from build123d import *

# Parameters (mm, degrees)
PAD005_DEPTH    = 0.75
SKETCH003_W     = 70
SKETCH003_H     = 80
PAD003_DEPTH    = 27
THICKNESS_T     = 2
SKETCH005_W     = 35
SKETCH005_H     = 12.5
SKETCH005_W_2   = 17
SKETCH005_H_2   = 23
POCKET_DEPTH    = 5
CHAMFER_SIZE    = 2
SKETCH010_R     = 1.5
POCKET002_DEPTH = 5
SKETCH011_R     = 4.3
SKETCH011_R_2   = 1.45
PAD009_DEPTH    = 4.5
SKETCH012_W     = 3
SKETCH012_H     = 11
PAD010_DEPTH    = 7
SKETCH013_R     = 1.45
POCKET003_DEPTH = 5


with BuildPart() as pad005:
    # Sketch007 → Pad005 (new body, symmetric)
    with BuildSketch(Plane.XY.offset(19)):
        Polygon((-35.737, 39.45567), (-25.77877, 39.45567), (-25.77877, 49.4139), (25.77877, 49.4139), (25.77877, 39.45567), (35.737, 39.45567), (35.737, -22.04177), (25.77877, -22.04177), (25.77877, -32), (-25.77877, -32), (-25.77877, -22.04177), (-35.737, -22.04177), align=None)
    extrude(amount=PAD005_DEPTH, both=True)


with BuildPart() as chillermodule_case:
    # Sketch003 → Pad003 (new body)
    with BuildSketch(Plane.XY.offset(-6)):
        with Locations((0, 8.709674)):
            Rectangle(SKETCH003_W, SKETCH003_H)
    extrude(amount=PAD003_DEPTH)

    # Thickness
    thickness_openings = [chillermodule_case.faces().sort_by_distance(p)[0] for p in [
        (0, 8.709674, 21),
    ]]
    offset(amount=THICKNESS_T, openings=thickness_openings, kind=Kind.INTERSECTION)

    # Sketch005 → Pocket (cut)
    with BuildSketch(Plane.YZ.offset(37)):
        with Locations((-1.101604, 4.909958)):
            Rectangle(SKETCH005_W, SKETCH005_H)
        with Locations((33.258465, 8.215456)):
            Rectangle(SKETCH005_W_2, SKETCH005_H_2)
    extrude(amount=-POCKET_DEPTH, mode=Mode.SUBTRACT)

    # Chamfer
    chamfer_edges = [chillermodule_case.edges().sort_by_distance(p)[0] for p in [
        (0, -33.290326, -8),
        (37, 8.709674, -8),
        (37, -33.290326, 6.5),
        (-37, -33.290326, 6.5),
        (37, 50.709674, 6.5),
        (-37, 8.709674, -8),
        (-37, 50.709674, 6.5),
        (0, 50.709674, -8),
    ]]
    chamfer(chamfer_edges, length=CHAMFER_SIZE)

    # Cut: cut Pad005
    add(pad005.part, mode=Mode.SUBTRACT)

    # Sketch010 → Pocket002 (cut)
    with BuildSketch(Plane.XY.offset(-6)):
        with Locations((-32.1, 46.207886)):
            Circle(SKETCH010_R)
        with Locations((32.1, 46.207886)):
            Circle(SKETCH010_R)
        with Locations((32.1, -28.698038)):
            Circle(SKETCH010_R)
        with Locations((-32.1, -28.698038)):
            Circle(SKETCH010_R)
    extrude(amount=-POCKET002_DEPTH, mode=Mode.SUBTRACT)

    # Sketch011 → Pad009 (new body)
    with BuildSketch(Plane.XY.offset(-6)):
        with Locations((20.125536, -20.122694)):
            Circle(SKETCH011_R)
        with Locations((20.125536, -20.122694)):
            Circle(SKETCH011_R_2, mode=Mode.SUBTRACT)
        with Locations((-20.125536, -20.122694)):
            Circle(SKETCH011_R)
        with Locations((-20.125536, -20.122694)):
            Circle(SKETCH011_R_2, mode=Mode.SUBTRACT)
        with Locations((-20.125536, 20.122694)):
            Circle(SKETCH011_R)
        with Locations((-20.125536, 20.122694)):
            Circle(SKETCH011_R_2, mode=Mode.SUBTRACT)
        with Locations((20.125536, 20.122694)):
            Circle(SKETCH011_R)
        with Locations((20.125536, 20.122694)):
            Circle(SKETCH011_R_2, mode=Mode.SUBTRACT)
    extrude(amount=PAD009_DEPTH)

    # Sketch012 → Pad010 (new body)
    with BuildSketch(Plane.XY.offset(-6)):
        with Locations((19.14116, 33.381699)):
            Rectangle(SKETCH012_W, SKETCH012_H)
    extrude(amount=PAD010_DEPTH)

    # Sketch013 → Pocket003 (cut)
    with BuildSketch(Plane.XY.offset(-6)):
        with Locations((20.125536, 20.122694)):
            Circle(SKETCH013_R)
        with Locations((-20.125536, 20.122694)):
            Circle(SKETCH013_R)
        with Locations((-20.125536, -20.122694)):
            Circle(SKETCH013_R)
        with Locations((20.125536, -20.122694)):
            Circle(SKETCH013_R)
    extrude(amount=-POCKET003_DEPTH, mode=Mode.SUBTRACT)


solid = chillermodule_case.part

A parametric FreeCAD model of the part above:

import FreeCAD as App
import Part
import Sketcher
Q = App.Units.Quantity


def edges_at(feature, points):
    """Names of the edges that pass closest to the given points."""
    edges = feature.Shape.Edges
    near = lambda p: min(range(len(edges)), key=lambda i: edges[i].distToShape(Part.Vertex(*p))[0])
    return sorted({f"Edge{near(p) + 1}" for p in points})


def faces_at(feature, points):
    """Names of the faces that lie closest to the given points."""
    faces = feature.Shape.Faces
    near = lambda p: min(range(len(faces)), key=lambda i: faces[i].distToShape(Part.Vertex(*p))[0])
    return sorted({f"Face{near(p) + 1}" for p in points})

doc = App.newDocument("Part")
params = doc.addObject("Spreadsheet::Sheet", "Params")
for row, (alias, value) in enumerate([
    ("pad1_length", "1.5 mm"),
    ("sketch2_width", "70 mm"),
    ("sketch2_height", "80 mm"),
    ("pad2_length", "27 mm"),
    ("thickness_wall", "2 mm"),
    ("sketch3_width", "35 mm"),
    ("sketch3_width2", "17 mm"),
    ("sketch3_height", "23 mm"),
    ("sketch3_height2", "12.5 mm"),
    ("pocket1_length", "5 mm"),
    ("chamfer_size", "2 mm"),
    ("sketch4_diameter", "3 mm"),
    ("pocket2_length", "5 mm"),
    ("sketch5_diameter", "8.6 mm"),
    ("sketch5_diameter2", "2.9 mm"),
    ("pad3_length", "4.5 mm"),
    ("sketch6_width", "3 mm"),
    ("sketch6_height", "11 mm"),
    ("pad4_length", "7 mm"),
    ("sketch7_diameter", "2.9 mm"),
    ("pocket3_length", "5 mm"),
], start=1):
    params.set(f"A{row}", alias)
    params.set(f"B{row}", "=" + value)
    params.setAlias(f"B{row}", alias)

body = doc.addObject("PartDesign::Body", "Body")

# Sketch on XY plane
sketch1 = body.newObject("Sketcher::SketchObject", "Sketch")
sketch1.AttachmentSupport = (doc.getObject("XY_Plane"), [""])
sketch1.MapMode = "FlatFace"
sketch1.AttachmentOffset = App.Placement(App.Vector(0, 0, 19), App.Rotation())
sketch1.addGeometry(Part.LineSegment(App.Vector(-25.77877, 39.45567, 0), App.Vector(-35.737, 39.45567, 0)), False)
sketch1.addGeometry(Part.LineSegment(App.Vector(-35.737, 39.45567, 0), App.Vector(-35.737, -22.04177, 0)), False)
sketch1.addGeometry(Part.LineSegment(App.Vector(-35.737, -22.04177, 0), App.Vector(-25.77877, -22.04177, 0)), False)
sketch1.addGeometry(Part.LineSegment(App.Vector(-25.77877, -22.04177, 0), App.Vector(-25.77877, -32, 0)), False)
sketch1.addGeometry(Part.LineSegment(App.Vector(-25.77877, -32, 0), App.Vector(25.77877, -32, 0)), False)
sketch1.addGeometry(Part.LineSegment(App.Vector(25.77877, -32, 0), App.Vector(25.77877, -22.04177, 0)), False)
sketch1.addGeometry(Part.LineSegment(App.Vector(25.77877, -22.04177, 0), App.Vector(35.737, -22.04177, 0)), False)
sketch1.addGeometry(Part.LineSegment(App.Vector(35.737, -22.04177, 0), App.Vector(35.737, 39.45567, 0)), False)
sketch1.addGeometry(Part.LineSegment(App.Vector(35.737, 39.45567, 0), App.Vector(25.77877, 39.45567, 0)), False)
sketch1.addGeometry(Part.LineSegment(App.Vector(25.77877, 39.45567, 0), App.Vector(25.77877, 49.4139, 0)), False)
sketch1.addGeometry(Part.LineSegment(App.Vector(25.77877, 49.4139, 0), App.Vector(-25.77877, 49.4139, 0)), False)
sketch1.addGeometry(Part.LineSegment(App.Vector(-25.77877, 49.4139, 0), App.Vector(-25.77877, 39.45567, 0)), False)
sketch1.addConstraint(Sketcher.Constraint("Coincident", 0, 2, 1, 1))
sketch1.addConstraint(Sketcher.Constraint("Coincident", 1, 2, 2, 1))
sketch1.addConstraint(Sketcher.Constraint("Coincident", 2, 2, 3, 1))
sketch1.addConstraint(Sketcher.Constraint("Coincident", 3, 2, 4, 1))
sketch1.addConstraint(Sketcher.Constraint("Coincident", 4, 2, 5, 1))
sketch1.addConstraint(Sketcher.Constraint("Coincident", 5, 2, 6, 1))
sketch1.addConstraint(Sketcher.Constraint("Coincident", 6, 2, 7, 1))
sketch1.addConstraint(Sketcher.Constraint("Coincident", 7, 2, 8, 1))
sketch1.addConstraint(Sketcher.Constraint("Coincident", 8, 2, 9, 1))
sketch1.addConstraint(Sketcher.Constraint("Coincident", 9, 2, 10, 1))
sketch1.addConstraint(Sketcher.Constraint("Coincident", 10, 2, 11, 1))
sketch1.addConstraint(Sketcher.Constraint("Coincident", 11, 2, 0, 1))
sketch1.addConstraint(Sketcher.Constraint("Horizontal", 0))
sketch1.addConstraint(Sketcher.Constraint("Vertical", 1))
sketch1.addConstraint(Sketcher.Constraint("Horizontal", 2))
sketch1.addConstraint(Sketcher.Constraint("Vertical", 3))
sketch1.addConstraint(Sketcher.Constraint("Horizontal", 4))
sketch1.addConstraint(Sketcher.Constraint("Vertical", 5))
sketch1.addConstraint(Sketcher.Constraint("Horizontal", 6))
sketch1.addConstraint(Sketcher.Constraint("Vertical", 7))
sketch1.addConstraint(Sketcher.Constraint("Horizontal", 8))
sketch1.addConstraint(Sketcher.Constraint("Vertical", 9))
sketch1.addConstraint(Sketcher.Constraint("Horizontal", 10))
sketch1.addConstraint(Sketcher.Constraint("Vertical", 11))
sketch1.addConstraint(Sketcher.Constraint("Symmetric", 2, 2, 5, 2, -2))
sketch1.addConstraint(Sketcher.Constraint("Symmetric", 0, 2, 7, 2, -2))
sketch1.addConstraint(Sketcher.Constraint("Vertical", 5, 2, 8, 2))
sketch1.addConstraint(Sketcher.Constraint("Vertical", 3, 2, 10, 2))
sketch1.addConstraint(Sketcher.Constraint("Equal", 8, 3))
sketch1.addConstraint(Sketcher.Constraint("Equal", 5, 9))
sketch1.addConstraint(Sketcher.Constraint("DistanceY", 3, 2, -1, 1, Q("32 mm")))
sketch1.addConstraint(Sketcher.Constraint("DistanceX", 0, 2, -1, 1, Q("35.737 mm")))
sketch1.addConstraint(Sketcher.Constraint("DistanceX", 0, 2, 0, 1, Q("9.95823 mm")))
sketch1.addConstraint(Sketcher.Constraint("DistanceY", 1, 2, 1, 1, Q("61.49744 mm")))
pad1 = body.newObject("PartDesign::Pad", "Pad")
pad1.Profile = sketch1
pad1.setExpression("Length", "Params.pad1_length")
pad1.Midplane = True
body2 = doc.addObject("PartDesign::Body", "Body001")

# Sketch on XY plane
sketch2 = body2.newObject("Sketcher::SketchObject", "Sketch001")
sketch2.AttachmentSupport = (doc.getObject("XY_Plane001"), [""])
sketch2.MapMode = "FlatFace"
sketch2.AttachmentOffset = App.Placement(App.Vector(0, 0, -6), App.Rotation())
sketch2.addGeometry(Part.LineSegment(App.Vector(-35, 48.709674, 0), App.Vector(-35, -31.290326, 0)), False)
sketch2.addGeometry(Part.LineSegment(App.Vector(-35, -31.290326, 0), App.Vector(35, -31.290326, 0)), False)
sketch2.addGeometry(Part.LineSegment(App.Vector(35, -31.290326, 0), App.Vector(35, 48.709674, 0)), False)
sketch2.addGeometry(Part.LineSegment(App.Vector(35, 48.709674, 0), App.Vector(-35, 48.709674, 0)), False)
sketch2.addConstraint(Sketcher.Constraint("Coincident", 0, 2, 1, 1))
sketch2.addConstraint(Sketcher.Constraint("Coincident", 1, 2, 2, 1))
sketch2.addConstraint(Sketcher.Constraint("Coincident", 2, 2, 3, 1))
sketch2.addConstraint(Sketcher.Constraint("Coincident", 3, 2, 0, 1))
sketch2.addConstraint(Sketcher.Constraint("Vertical", 0))
sketch2.addConstraint(Sketcher.Constraint("Horizontal", 1))
sketch2.addConstraint(Sketcher.Constraint("Vertical", 2))
sketch2.addConstraint(Sketcher.Constraint("Horizontal", 3))
sketch2.addConstraint(Sketcher.Constraint("DistanceX", 1, 1, 1, 2, Q("70 mm")))
sketch2.addConstraint(Sketcher.Constraint("DistanceY", 0, 2, 0, 1, Q("80 mm")))
sketch2.addConstraint(Sketcher.Constraint("DistanceX", 0, 2, -1, 1, Q("35 mm")))
sketch2.addConstraint(Sketcher.Constraint("DistanceY", 0, 2, -1, 1, Q("31.290326 mm")))
sketch2.setExpression("Constraints[8]", "Params.sketch2_width")
sketch2.setExpression("Constraints[9]", "Params.sketch2_height")
pad2 = body2.newObject("PartDesign::Pad", "Pad001")
pad2.Profile = sketch2
pad2.setExpression("Length", "Params.pad2_length")
doc.recompute()

thickness = body2.newObject("PartDesign::Thickness", "Thickness")
thickness.Base = (pad2, faces_at(pad2, [(0, 8.71, 21)]))
thickness.setExpression("Value", "Params.thickness_wall")
thickness.Reversed = False
thickness.Join = "Intersection"

# Sketch on YZ plane
sketch3 = body2.newObject("Sketcher::SketchObject", "Sketch002")
sketch3.AttachmentSupport = (doc.getObject("YZ_Plane001"), [""])
sketch3.MapMode = "FlatFace"
sketch3.AttachmentOffset = App.Placement(App.Vector(0, 0, 37), App.Rotation())
sketch3.addGeometry(Part.LineSegment(App.Vector(-18.601604, 11.159958, 0), App.Vector(-18.601604, -1.340042, 0)), False)
sketch3.addGeometry(Part.LineSegment(App.Vector(-18.601604, -1.340042, 0), App.Vector(16.398396, -1.340042, 0)), False)
sketch3.addGeometry(Part.LineSegment(App.Vector(16.398396, -1.340042, 0), App.Vector(16.398396, 11.159958, 0)), False)
sketch3.addGeometry(Part.LineSegment(App.Vector(16.398396, 11.159958, 0), App.Vector(-18.601604, 11.159958, 0)), False)
sketch3.addGeometry(Part.LineSegment(App.Vector(24.758465, 19.715456, 0), App.Vector(24.758465, -3.284544, 0)), False)
sketch3.addGeometry(Part.LineSegment(App.Vector(24.758465, -3.284544, 0), App.Vector(41.758465, -3.284544, 0)), False)
sketch3.addGeometry(Part.LineSegment(App.Vector(41.758465, -3.284544, 0), App.Vector(41.758465, 19.715456, 0)), False)
sketch3.addGeometry(Part.LineSegment(App.Vector(41.758465, 19.715456, 0), App.Vector(24.758465, 19.715456, 0)), False)
sketch3.addConstraint(Sketcher.Constraint("Coincident", 0, 2, 1, 1))
sketch3.addConstraint(Sketcher.Constraint("Coincident", 1, 2, 2, 1))
sketch3.addConstraint(Sketcher.Constraint("Coincident", 2, 2, 3, 1))
sketch3.addConstraint(Sketcher.Constraint("Coincident", 3, 2, 0, 1))
sketch3.addConstraint(Sketcher.Constraint("Coincident", 4, 2, 5, 1))
sketch3.addConstraint(Sketcher.Constraint("Coincident", 5, 2, 6, 1))
sketch3.addConstraint(Sketcher.Constraint("Coincident", 6, 2, 7, 1))
sketch3.addConstraint(Sketcher.Constraint("Coincident", 7, 2, 4, 1))
sketch3.addConstraint(Sketcher.Constraint("Vertical", 0))
sketch3.addConstraint(Sketcher.Constraint("Horizontal", 1))
sketch3.addConstraint(Sketcher.Constraint("Vertical", 2))
sketch3.addConstraint(Sketcher.Constraint("Horizontal", 3))
sketch3.addConstraint(Sketcher.Constraint("Vertical", 4))
sketch3.addConstraint(Sketcher.Constraint("Horizontal", 5))
sketch3.addConstraint(Sketcher.Constraint("Vertical", 6))
sketch3.addConstraint(Sketcher.Constraint("Horizontal", 7))
sketch3.addConstraint(Sketcher.Constraint("DistanceX", 1, 1, 1, 2, Q("35 mm")))
sketch3.addConstraint(Sketcher.Constraint("DistanceX", 5, 1, 5, 2, Q("17 mm")))
sketch3.addConstraint(Sketcher.Constraint("DistanceY", 4, 2, 4, 1, Q("23 mm")))
sketch3.addConstraint(Sketcher.Constraint("DistanceY", 0, 2, 0, 1, Q("12.5 mm")))
sketch3.addConstraint(Sketcher.Constraint("DistanceY", 1, 2, 6, 2, Q("21.055498 mm")))
sketch3.addConstraint(Sketcher.Constraint("DistanceX", 1, 2, 4, 2, Q("8.360069 mm")))
sketch3.addConstraint(Sketcher.Constraint("DistanceX", 0, 2, -1, 1, Q("18.601604 mm")))
sketch3.addConstraint(Sketcher.Constraint("DistanceY", 0, 2, -1, 1, Q("1.340042 mm")))
sketch3.setExpression("Constraints[16]", "Params.sketch3_width")
sketch3.setExpression("Constraints[17]", "Params.sketch3_width2")
sketch3.setExpression("Constraints[18]", "Params.sketch3_height")
sketch3.setExpression("Constraints[19]", "Params.sketch3_height2")
pocket1 = body2.newObject("PartDesign::Pocket", "Pocket")
pocket1.Profile = sketch3
pocket1.setExpression("Length", "Params.pocket1_length")
doc.recompute()

chamfer = body2.newObject("PartDesign::Chamfer", "Chamfer")
chamfer.Base = (pocket1, edges_at(pocket1, [
    (0, -33.29, -8),
    (37, 8.71, -8),
    (37, -33.29, 6.5),
    (-37, -33.29, 6.5),
    (37, 50.71, 6.5),
    (-37, 8.71, -8),
    (-37, 50.71, 6.5),
    (0, 50.71, -8),
]))
chamfer.setExpression("Size", "Params.chamfer_size")
doc.recompute()

boolean = body2.newObject("PartDesign::Boolean", "Boolean")
boolean.Type = "Cut"
boolean.addObjects([body])

# Sketch on XY plane
sketch4 = body2.newObject("Sketcher::SketchObject", "Sketch003")
sketch4.AttachmentSupport = (doc.getObject("XY_Plane001"), [""])
sketch4.MapMode = "FlatFace"
sketch4.AttachmentOffset = App.Placement(App.Vector(0, 0, -6), App.Rotation())
sketch4.addGeometry(Part.Circle(App.Vector(-32.1, 46.207886, 0), App.Vector(0, 0, 1), 1.5), False)
sketch4.addGeometry(Part.Circle(App.Vector(32.1, 46.207886, 0), App.Vector(0, 0, 1), 1.5), False)
sketch4.addGeometry(Part.Circle(App.Vector(32.1, -28.698038, 0), App.Vector(0, 0, 1), 1.5), False)
sketch4.addGeometry(Part.Circle(App.Vector(-32.1, -28.698038, 0), App.Vector(0, 0, 1), 1.5), False)
sketch4.addConstraint(Sketcher.Constraint("Equal", 0, 1))
sketch4.addConstraint(Sketcher.Constraint("Equal", 1, 2))
sketch4.addConstraint(Sketcher.Constraint("Equal", 2, 3))
sketch4.addConstraint(Sketcher.Constraint("Symmetric", 0, 3, 1, 3, -2))
sketch4.addConstraint(Sketcher.Constraint("Symmetric", 2, 3, 3, 3, -2))
sketch4.addConstraint(Sketcher.Constraint("Vertical", 1, 3, 2, 3))
sketch4.addConstraint(Sketcher.Constraint("Diameter", 0, Q("3 mm")))
sketch4.addConstraint(Sketcher.Constraint("DistanceX", 0, 3, -1, 1, Q("32.1 mm")))
sketch4.addConstraint(Sketcher.Constraint("DistanceY", 2, 3, -1, 1, Q("28.698038 mm")))
sketch4.addConstraint(Sketcher.Constraint("DistanceY", -1, 1, 0, 3, Q("46.207886 mm")))
sketch4.setExpression("Constraints[6]", "Params.sketch4_diameter")
pocket2 = body2.newObject("PartDesign::Pocket", "Pocket001")
pocket2.Profile = sketch4
pocket2.setExpression("Length", "Params.pocket2_length")

# Sketch on XY plane
sketch5 = body2.newObject("Sketcher::SketchObject", "Sketch004")
sketch5.AttachmentSupport = (doc.getObject("XY_Plane001"), [""])
sketch5.MapMode = "FlatFace"
sketch5.AttachmentOffset = App.Placement(App.Vector(0, 0, -6), App.Rotation())
sketch5.addGeometry(Part.Circle(App.Vector(20.125536, -20.122694, 0), App.Vector(0, 0, 1), 4.3), False)
sketch5.addGeometry(Part.Circle(App.Vector(20.125536, -20.122694, 0), App.Vector(0, 0, 1), 1.45), False)
sketch5.addGeometry(Part.Circle(App.Vector(-20.125536, -20.122694, 0), App.Vector(0, 0, 1), 4.3), False)
sketch5.addGeometry(Part.Circle(App.Vector(-20.125536, -20.122694, 0), App.Vector(0, 0, 1), 1.45), False)
sketch5.addGeometry(Part.Circle(App.Vector(-20.125536, 20.122694, 0), App.Vector(0, 0, 1), 4.3), False)
sketch5.addGeometry(Part.Circle(App.Vector(-20.125536, 20.122694, 0), App.Vector(0, 0, 1), 1.45), False)
sketch5.addGeometry(Part.Circle(App.Vector(20.125536, 20.122694, 0), App.Vector(0, 0, 1), 4.3), False)
sketch5.addGeometry(Part.Circle(App.Vector(20.125536, 20.122694, 0), App.Vector(0, 0, 1), 1.45), False)
sketch5.addConstraint(Sketcher.Constraint("Coincident", 1, 3, 0, 3))
sketch5.addConstraint(Sketcher.Constraint("Coincident", 3, 3, 2, 3))
sketch5.addConstraint(Sketcher.Constraint("Coincident", 5, 3, 4, 3))
sketch5.addConstraint(Sketcher.Constraint("Coincident", 7, 3, 6, 3))
sketch5.addConstraint(Sketcher.Constraint("Equal", 0, 2))
sketch5.addConstraint(Sketcher.Constraint("Equal", 1, 3))
sketch5.addConstraint(Sketcher.Constraint("Equal", 2, 4))
sketch5.addConstraint(Sketcher.Constraint("Equal", 3, 5))
sketch5.addConstraint(Sketcher.Constraint("Equal", 4, 6))
sketch5.addConstraint(Sketcher.Constraint("Equal", 5, 7))
sketch5.addConstraint(Sketcher.Constraint("Symmetric", 0, 3, 4, 3, -1, 1))
sketch5.addConstraint(Sketcher.Constraint("Symmetric", 2, 3, 6, 3, -1, 1))
sketch5.addConstraint(Sketcher.Constraint("Symmetric", 0, 3, 2, 3, -2))
sketch5.addConstraint(Sketcher.Constraint("Diameter", 0, Q("8.6 mm")))
sketch5.addConstraint(Sketcher.Constraint("Diameter", 1, Q("2.9 mm")))
sketch5.addConstraint(Sketcher.Constraint("DistanceX", -1, 1, 0, 3, Q("20.125536 mm")))
sketch5.addConstraint(Sketcher.Constraint("DistanceY", 0, 3, -1, 1, Q("20.122694 mm")))
sketch5.setExpression("Constraints[13]", "Params.sketch5_diameter")
sketch5.setExpression("Constraints[14]", "Params.sketch5_diameter2")
pad3 = body2.newObject("PartDesign::Pad", "Pad002")
pad3.Profile = sketch5
pad3.setExpression("Length", "Params.pad3_length")

# Sketch on XY plane
sketch6 = body2.newObject("Sketcher::SketchObject", "Sketch005")
sketch6.AttachmentSupport = (doc.getObject("XY_Plane001"), [""])
sketch6.MapMode = "FlatFace"
sketch6.AttachmentOffset = App.Placement(App.Vector(0, 0, -6), App.Rotation())
sketch6.addGeometry(Part.LineSegment(App.Vector(17.64116, 38.881699, 0), App.Vector(17.64116, 27.881699, 0)), False)
sketch6.addGeometry(Part.LineSegment(App.Vector(17.64116, 27.881699, 0), App.Vector(20.64116, 27.881699, 0)), False)
sketch6.addGeometry(Part.LineSegment(App.Vector(20.64116, 27.881699, 0), App.Vector(20.64116, 38.881699, 0)), False)
sketch6.addGeometry(Part.LineSegment(App.Vector(20.64116, 38.881699, 0), App.Vector(17.64116, 38.881699, 0)), False)
sketch6.addConstraint(Sketcher.Constraint("Coincident", 0, 2, 1, 1))
sketch6.addConstraint(Sketcher.Constraint("Coincident", 1, 2, 2, 1))
sketch6.addConstraint(Sketcher.Constraint("Coincident", 2, 2, 3, 1))
sketch6.addConstraint(Sketcher.Constraint("Coincident", 3, 2, 0, 1))
sketch6.addConstraint(Sketcher.Constraint("Vertical", 0))
sketch6.addConstraint(Sketcher.Constraint("Horizontal", 1))
sketch6.addConstraint(Sketcher.Constraint("Vertical", 2))
sketch6.addConstraint(Sketcher.Constraint("Horizontal", 3))
sketch6.addConstraint(Sketcher.Constraint("DistanceX", 1, 1, 1, 2, Q("3 mm")))
sketch6.addConstraint(Sketcher.Constraint("DistanceY", 0, 2, 0, 1, Q("11 mm")))
sketch6.addConstraint(Sketcher.Constraint("DistanceY", -1, 1, 0, 2, Q("27.881699 mm")))
sketch6.addConstraint(Sketcher.Constraint("DistanceX", -1, 1, 0, 2, Q("17.64116 mm")))
sketch6.setExpression("Constraints[8]", "Params.sketch6_width")
sketch6.setExpression("Constraints[9]", "Params.sketch6_height")
pad4 = body2.newObject("PartDesign::Pad", "Pad003")
pad4.Profile = sketch6
pad4.setExpression("Length", "Params.pad4_length")

# Sketch on XY plane
sketch7 = body2.newObject("Sketcher::SketchObject", "Sketch006")
sketch7.AttachmentSupport = (doc.getObject("XY_Plane001"), [""])
sketch7.MapMode = "FlatFace"
sketch7.AttachmentOffset = App.Placement(App.Vector(0, 0, -6), App.Rotation())
sketch7.addGeometry(Part.Circle(App.Vector(20.125536, 20.122694, 0), App.Vector(0, 0, 1), 1.45), False)
sketch7.addGeometry(Part.Circle(App.Vector(-20.125536, 20.122694, 0), App.Vector(0, 0, 1), 1.45), False)
sketch7.addGeometry(Part.Circle(App.Vector(-20.125536, -20.122694, 0), App.Vector(0, 0, 1), 1.45), False)
sketch7.addGeometry(Part.Circle(App.Vector(20.125536, -20.122694, 0), App.Vector(0, 0, 1), 1.45), False)
sketch7.addConstraint(Sketcher.Constraint("Equal", 0, 1))
sketch7.addConstraint(Sketcher.Constraint("Equal", 1, 2))
sketch7.addConstraint(Sketcher.Constraint("Equal", 2, 3))
sketch7.addConstraint(Sketcher.Constraint("Symmetric", 0, 3, 2, 3, -1, 1))
sketch7.addConstraint(Sketcher.Constraint("Symmetric", 1, 3, 3, 3, -1, 1))
sketch7.addConstraint(Sketcher.Constraint("Symmetric", 0, 3, 1, 3, -2))
sketch7.addConstraint(Sketcher.Constraint("Diameter", 0, Q("2.9 mm")))
sketch7.addConstraint(Sketcher.Constraint("DistanceX", -1, 1, 0, 3, Q("20.125536 mm")))
sketch7.addConstraint(Sketcher.Constraint("DistanceY", -1, 1, 0, 3, Q("20.122694 mm")))
sketch7.setExpression("Constraints[6]", "Params.sketch7_diameter")
pocket3 = body2.newObject("PartDesign::Pocket", "Pocket002")
pocket3.Profile = sketch7
pocket3.setExpression("Length", "Params.pocket3_length")

doc.recompute()
